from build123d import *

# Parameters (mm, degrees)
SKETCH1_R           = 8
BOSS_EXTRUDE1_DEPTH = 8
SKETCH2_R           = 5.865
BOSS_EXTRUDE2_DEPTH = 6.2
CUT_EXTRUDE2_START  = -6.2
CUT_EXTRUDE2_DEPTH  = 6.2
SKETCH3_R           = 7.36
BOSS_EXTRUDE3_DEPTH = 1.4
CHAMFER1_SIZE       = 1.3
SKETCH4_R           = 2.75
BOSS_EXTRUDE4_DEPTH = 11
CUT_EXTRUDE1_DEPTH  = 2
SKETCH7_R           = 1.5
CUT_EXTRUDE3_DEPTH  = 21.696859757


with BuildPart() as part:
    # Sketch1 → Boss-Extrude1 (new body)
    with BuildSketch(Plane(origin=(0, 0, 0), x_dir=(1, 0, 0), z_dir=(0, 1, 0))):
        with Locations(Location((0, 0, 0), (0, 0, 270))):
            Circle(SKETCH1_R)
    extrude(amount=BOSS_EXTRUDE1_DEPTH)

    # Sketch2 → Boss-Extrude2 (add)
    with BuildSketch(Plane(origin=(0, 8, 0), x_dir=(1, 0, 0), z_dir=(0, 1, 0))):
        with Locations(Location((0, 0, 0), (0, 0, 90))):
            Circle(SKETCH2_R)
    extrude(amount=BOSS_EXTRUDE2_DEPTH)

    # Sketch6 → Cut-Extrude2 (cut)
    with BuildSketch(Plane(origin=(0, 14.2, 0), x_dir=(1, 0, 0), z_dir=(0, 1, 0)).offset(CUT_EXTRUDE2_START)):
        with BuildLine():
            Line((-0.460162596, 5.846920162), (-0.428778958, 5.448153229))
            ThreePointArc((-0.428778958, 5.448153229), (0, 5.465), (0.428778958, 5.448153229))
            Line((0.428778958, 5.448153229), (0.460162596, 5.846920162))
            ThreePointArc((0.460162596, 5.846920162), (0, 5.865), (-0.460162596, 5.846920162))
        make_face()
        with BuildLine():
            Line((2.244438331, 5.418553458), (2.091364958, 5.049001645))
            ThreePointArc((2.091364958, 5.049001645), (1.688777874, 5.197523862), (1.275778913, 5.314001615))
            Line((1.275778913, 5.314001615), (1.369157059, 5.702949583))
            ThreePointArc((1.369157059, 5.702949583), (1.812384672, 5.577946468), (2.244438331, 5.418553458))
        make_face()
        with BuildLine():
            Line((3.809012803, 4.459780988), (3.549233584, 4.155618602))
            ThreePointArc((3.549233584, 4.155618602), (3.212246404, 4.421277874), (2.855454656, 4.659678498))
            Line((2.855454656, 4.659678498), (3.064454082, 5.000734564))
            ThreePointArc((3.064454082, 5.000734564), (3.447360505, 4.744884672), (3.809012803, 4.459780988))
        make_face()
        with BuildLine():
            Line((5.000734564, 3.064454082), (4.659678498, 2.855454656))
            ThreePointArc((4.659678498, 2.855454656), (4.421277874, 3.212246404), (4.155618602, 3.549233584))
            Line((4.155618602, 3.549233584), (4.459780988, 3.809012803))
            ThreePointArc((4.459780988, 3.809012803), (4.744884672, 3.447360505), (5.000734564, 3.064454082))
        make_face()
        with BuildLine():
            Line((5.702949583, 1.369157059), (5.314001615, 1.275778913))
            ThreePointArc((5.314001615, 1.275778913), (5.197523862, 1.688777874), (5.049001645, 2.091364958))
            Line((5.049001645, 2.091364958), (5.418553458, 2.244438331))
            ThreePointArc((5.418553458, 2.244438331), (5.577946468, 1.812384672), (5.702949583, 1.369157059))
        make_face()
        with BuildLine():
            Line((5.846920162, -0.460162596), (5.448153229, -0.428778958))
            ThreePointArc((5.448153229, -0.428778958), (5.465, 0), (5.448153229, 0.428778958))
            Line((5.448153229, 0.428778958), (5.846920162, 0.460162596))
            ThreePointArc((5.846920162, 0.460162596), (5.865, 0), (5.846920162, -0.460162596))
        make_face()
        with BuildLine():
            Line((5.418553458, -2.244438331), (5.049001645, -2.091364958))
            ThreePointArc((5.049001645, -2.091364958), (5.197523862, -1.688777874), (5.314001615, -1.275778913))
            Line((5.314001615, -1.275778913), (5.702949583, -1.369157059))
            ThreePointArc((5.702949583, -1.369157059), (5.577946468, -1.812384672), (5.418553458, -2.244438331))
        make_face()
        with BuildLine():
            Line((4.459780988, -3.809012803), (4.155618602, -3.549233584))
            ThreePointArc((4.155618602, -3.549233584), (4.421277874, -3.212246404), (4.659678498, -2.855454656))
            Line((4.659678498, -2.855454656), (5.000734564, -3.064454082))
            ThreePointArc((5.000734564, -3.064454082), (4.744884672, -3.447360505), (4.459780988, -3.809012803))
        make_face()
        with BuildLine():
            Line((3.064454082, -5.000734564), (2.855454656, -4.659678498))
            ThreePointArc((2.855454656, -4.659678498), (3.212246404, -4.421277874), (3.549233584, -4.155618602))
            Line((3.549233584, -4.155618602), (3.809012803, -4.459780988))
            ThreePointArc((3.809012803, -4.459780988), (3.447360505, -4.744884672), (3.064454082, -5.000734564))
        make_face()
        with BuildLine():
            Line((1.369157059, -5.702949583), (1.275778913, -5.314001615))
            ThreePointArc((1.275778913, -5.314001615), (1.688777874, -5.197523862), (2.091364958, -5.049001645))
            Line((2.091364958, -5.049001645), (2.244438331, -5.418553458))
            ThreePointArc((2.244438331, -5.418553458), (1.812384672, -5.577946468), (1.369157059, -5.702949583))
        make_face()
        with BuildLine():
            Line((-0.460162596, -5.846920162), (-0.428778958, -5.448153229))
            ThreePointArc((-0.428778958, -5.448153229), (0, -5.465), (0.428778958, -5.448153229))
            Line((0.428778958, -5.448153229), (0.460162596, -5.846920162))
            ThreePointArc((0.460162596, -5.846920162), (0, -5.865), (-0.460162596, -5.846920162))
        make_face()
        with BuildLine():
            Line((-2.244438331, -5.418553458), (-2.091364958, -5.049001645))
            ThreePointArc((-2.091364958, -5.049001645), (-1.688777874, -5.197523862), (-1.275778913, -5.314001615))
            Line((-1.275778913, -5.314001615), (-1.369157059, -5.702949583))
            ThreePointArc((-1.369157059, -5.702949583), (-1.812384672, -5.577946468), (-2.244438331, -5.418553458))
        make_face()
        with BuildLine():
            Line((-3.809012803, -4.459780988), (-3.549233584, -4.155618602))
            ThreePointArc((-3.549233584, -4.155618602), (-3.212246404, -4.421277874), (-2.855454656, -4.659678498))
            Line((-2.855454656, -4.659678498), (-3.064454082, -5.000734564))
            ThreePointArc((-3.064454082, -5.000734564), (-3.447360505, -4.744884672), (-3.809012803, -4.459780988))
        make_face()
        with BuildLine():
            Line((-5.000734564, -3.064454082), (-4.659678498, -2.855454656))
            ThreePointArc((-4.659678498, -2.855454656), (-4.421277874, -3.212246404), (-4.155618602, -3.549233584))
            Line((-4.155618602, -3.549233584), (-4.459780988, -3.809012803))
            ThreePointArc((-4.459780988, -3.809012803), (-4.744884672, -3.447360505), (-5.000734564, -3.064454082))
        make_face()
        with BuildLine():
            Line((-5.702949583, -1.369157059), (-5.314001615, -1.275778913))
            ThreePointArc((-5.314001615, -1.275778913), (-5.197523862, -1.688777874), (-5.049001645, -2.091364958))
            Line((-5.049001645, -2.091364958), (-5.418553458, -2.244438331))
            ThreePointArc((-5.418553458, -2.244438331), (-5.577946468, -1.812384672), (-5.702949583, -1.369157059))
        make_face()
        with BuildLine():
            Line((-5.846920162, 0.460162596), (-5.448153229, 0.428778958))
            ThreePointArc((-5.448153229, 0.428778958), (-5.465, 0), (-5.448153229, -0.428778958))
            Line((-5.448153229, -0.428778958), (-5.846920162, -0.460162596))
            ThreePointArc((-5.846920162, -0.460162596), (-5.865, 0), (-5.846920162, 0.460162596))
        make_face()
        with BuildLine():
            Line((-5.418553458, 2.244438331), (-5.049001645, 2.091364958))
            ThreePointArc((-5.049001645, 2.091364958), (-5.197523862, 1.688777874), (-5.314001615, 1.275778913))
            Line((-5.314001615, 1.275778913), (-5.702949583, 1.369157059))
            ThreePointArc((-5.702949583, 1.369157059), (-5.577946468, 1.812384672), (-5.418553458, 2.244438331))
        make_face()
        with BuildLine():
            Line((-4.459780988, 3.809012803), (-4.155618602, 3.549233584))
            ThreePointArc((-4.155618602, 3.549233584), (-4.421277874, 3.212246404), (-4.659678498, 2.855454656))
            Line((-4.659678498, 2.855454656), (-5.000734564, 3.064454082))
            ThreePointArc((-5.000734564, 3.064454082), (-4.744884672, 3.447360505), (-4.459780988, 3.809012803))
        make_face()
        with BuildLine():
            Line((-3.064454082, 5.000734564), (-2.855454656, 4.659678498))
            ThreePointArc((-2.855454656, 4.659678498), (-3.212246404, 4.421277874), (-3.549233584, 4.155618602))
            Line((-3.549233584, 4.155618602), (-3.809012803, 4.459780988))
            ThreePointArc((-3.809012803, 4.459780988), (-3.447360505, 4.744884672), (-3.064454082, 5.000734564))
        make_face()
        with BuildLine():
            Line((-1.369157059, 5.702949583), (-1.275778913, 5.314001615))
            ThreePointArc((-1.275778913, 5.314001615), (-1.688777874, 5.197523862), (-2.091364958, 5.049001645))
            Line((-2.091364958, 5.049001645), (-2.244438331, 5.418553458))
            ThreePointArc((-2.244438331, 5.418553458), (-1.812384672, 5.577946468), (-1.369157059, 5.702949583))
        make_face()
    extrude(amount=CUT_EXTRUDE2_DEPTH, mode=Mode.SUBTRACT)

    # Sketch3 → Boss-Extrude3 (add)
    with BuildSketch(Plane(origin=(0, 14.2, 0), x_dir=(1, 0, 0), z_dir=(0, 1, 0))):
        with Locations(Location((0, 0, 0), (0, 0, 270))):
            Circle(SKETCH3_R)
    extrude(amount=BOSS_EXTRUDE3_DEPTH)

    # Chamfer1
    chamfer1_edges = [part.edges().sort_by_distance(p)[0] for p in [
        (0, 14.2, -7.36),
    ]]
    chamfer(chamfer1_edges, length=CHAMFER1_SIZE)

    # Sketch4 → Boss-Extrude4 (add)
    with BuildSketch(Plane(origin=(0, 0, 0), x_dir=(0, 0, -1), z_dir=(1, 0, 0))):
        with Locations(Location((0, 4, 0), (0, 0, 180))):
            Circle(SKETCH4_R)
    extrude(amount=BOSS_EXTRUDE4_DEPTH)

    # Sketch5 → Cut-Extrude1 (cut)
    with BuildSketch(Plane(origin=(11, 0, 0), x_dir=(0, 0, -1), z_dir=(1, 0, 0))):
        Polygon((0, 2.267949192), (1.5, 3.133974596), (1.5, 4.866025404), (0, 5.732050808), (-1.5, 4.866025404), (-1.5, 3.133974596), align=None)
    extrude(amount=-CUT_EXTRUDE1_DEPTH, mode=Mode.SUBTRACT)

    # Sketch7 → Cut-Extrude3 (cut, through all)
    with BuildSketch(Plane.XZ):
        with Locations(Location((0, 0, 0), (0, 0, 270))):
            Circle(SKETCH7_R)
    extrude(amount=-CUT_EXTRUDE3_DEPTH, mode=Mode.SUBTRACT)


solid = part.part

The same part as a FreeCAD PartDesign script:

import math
import FreeCAD as App
import Part
import Sketcher

V = App.Vector
Q = App.Units.Quantity


def edges_at(feature, points):
    """Names of the edges that pass closest to the given points."""
    edges = feature.Shape.Edges
    near = lambda p: min(range(len(edges)), key=lambda i: edges[i].distToShape(Part.Vertex(*p))[0])
    return sorted({f"Edge{near(p) + 1}" for p in points})


def add_polygon(sketch, points):
    """Adds a closed chain of lines whose ends are joined by coincident constraints."""
    first, n = sketch.GeometryCount, len(points)
    for a, b in zip(points, points[1:] + points[:1]):
        sketch.addGeometry(Part.LineSegment(App.Vector(*a, 0), App.Vector(*b, 0)), False)
    for i in range(n):
        sketch.addConstraint(Sketcher.Constraint("Coincident", first + i, 2, first + (i + 1) % n, 1))

doc = App.newDocument("Part")
params = doc.addObject("Spreadsheet::Sheet", "Params")
for row, (alias, value) in enumerate([
    ("sketch1_diameter", "16 mm"),
    ("pad1_length", "8 mm"),
    ("sketch2_diameter", "11.73 mm"),
    ("pad2_length", "6.2 mm"),
    ("pocket1_length", "6.2 mm"),
    ("sketch4_diameter", "14.72 mm"),
    ("pad3_length", "1.4 mm"),
    ("chamfer_size", "1.3 mm"),
    ("sketch5_diameter", "5.5 mm"),
    ("pad4_length", "11 mm"),
    ("pocket2_length", "2 mm"),
    ("sketch7_diameter", "3 mm"),
], start=1):
    params.set(f"A{row}", alias)
    params.set(f"B{row}", "=" + value)
    params.setAlias(f"B{row}", alias)

body = doc.addObject("PartDesign::Body", "Body")

sketch1 = doc.addObject("Sketcher::SketchObject", "Sketch")
body.addObject(sketch1)
sketch1.AttachmentSupport = (doc.XZ_Plane, [""])
sketch1.MapMode = "FlatFace"
sketch1.addGeometry(Part.Circle(V(0, 0, 0), V(0, 0, 1), 8), False)
sketch1.addConstraint([
    Sketcher.Constraint("Coincident", 0, 3, -1, 1),
    Sketcher.Constraint("Diameter", 0, Q("16 mm")),
])
sketch1.setExpression("Constraints[1]", "Params.sketch1_diameter")
pad1 = doc.addObject("PartDesign::Pad", "Pad")
body.addObject(pad1)
pad1.Profile = sketch1
pad1.setExpression("Length", "Params.pad1_length")
pad1.Reversed = True

sketch2 = doc.addObject("Sketcher::SketchObject", "Sketch001")
body.addObject(sketch2)
sketch2.AttachmentSupport = (doc.XZ_Plane, [""])
sketch2.MapMode = "FlatFace"
sketch2.AttachmentOffset = App.Placement(V(0, 0, -8), App.Rotation())
sketch2.addGeometry(Part.Circle(V(0, 0, 0), V(0, 0, 1), 6), False)
sketch2.addConstraint([
    Sketcher.Constraint("Coincident", 0, 3, -1, 1),
    Sketcher.Constraint("Diameter", 0, Q("11.73 mm")),
])
sketch2.setExpression("Constraints[1]", "Params.sketch2_diameter")
pad2 = doc.addObject("PartDesign::Pad", "Pad001")
body.addObject(pad2)
pad2.Profile = sketch2
pad2.setExpression("Length", "Params.pad2_length")
pad2.Reversed = True

sketch3 = doc.addObject("Sketcher::SketchObject", "Sketch002")
body.addObject(sketch3)
sketch3.AttachmentSupport = (doc.XZ_Plane, [""])
sketch3.MapMode = "FlatFace"
sketch3.AttachmentOffset = App.Placement(V(0, 0, -8), App.Rotation())
sketch3.addGeometry([
    Part.LineSegment(V(-0.46, -5.85, 0), V(-0.43, -5.45, 0)),
    Part.ArcOfCircle(Part.Circle(V(0, 0, 0), V(0, 0, 1), 5.47), math.radians(-94.5), math.radians(-85.5)),
    Part.LineSegment(V(0.43, -5.45, 0), V(0.46, -5.85, 0)),
    Part.ArcOfCircle(Part.Circle(V(0, 0, 0), V(0, 0, 1), 5.86), math.radians(-94.5), math.radians(-85.5)),
    Part.LineSegment(V(2.09, -5.05, 0), V(2.24, -5.42, 0)),
    Part.ArcOfCircle(Part.Circle(V(0, 0, 0), V(0, 0, 1), 5.86), math.radians(-76.5), math.radians(-67.5)),
    Part.LineSegment(V(1.37, -5.7, 0), V(1.28, -5.31, 0)),
    Part.ArcOfCircle(Part.Circle(V(0, 0, 0), V(0, 0, 1), 5.46), math.radians(-76.5), math.radians(-67.5)),
    Part.LineSegment(V(3.55, -4.16, 0), V(3.81, -4.46, 0)),
    Part.ArcOfCircle(Part.Circle(V(0, 0, 0), V(0, 0, 1), 5.86), math.radians(-58.5), math.radians(-49.5)),
    Part.LineSegment(V(3.06, -5, 0), V(2.86, -4.66, 0)),
    Part.ArcOfCircle(Part.Circle(V(0, 0, 0), V(0, 0, 1), 5.46), math.radians(-58.5), math.radians(-49.5)),
    Part.LineSegment(V(4.66, -2.86, 0), V(5, -3.06, 0)),
    Part.ArcOfCircle(Part.Circle(V(0, 0, 0), V(0, 0, 1), 5.86), math.radians(-40.5), math.radians(-31.5)),
    Part.LineSegment(V(4.46, -3.81, 0), V(4.16, -3.55, 0)),
    Part.ArcOfCircle(Part.Circle(V(0, 0, 0), V(0, 0, 1), 5.46), math.radians(-40.5), math.radians(-31.5)),
    Part.LineSegment(V(5.31, -1.28, 0), V(5.7, -1.37, 0)),
    Part.ArcOfCircle(Part.Circle(V(0, 0, 0), V(0, 0, 1), 5.86), math.radians(-22.5), math.radians(-13.5)),
    Part.LineSegment(V(5.42, -2.24, 0), V(5.05, -2.09, 0)),
    Part.ArcOfCircle(Part.Circle(V(0, 0, 0), V(0, 0, 1), 5.46), math.radians(-22.5), math.radians(-13.5)),
    Part.LineSegment(V(5.45, 0.43, 0), V(5.85, 0.46, 0)),
    Part.ArcOfCircle(Part.Circle(V(0, 0, 0), V(0, 0, 1), 5.86), math.radians(-4.5), math.radians(4.5)),
    Part.LineSegment(V(5.85, -0.46, 0), V(5.45, -0.43, 0)),
    Part.ArcOfCircle(Part.Circle(V(0, 0, 0), V(0, 0, 1), 5.47), math.radians(-4.5), math.radians(4.5)),
    Part.LineSegment(V(5.05, 2.09, 0), V(5.42, 2.24, 0)),
    Part.ArcOfCircle(Part.Circle(V(0, 0, 0), V(0, 0, 1), 5.86), math.radians(13.5), math.radians(22.5)),
    Part.LineSegment(V(5.7, 1.37, 0), V(5.31, 1.28, 0)),
    Part.ArcOfCircle(Part.Circle(V(0, 0, 0), V(0, 0, 1), 5.46), math.radians(13.5), math.radians(22.5)),
    Part.LineSegment(V(4.16, 3.55, 0), V(4.46, 3.81, 0)),
    Part.ArcOfCircle(Part.Circle(V(0, 0, 0), V(0, 0, 1), 5.86), math.radians(31.5), math.radians(40.5)),
    Part.LineSegment(V(5, 3.06, 0), V(4.66, 2.86, 0)),
    Part.ArcOfCircle(Part.Circle(V(0, 0, 0), V(0, 0, 1), 5.46), math.radians(31.5), math.radians(40.5)),
    Part.LineSegment(V(2.86, 4.66, 0), V(3.06, 5, 0)),
    Part.ArcOfCircle(Part.Circle(V(0, 0, 0), V(0, 0, 1), 5.86), math.radians(49.5), math.radians(58.5)),
    Part.LineSegment(V(3.81, 4.46, 0), V(3.55, 4.16, 0)),
    Part.ArcOfCircle(Part.Circle(V(0, 0, 0), V(0, 0, 1), 5.46), math.radians(49.5), math.radians(58.5)),
    Part.LineSegment(V(1.28, 5.31, 0), V(1.37, 5.7, 0)),
    Part.ArcOfCircle(Part.Circle(V(0, 0, 0), V(0, 0, 1), 5.86), math.radians(67.5), math.radians(76.5)),
    Part.LineSegment(V(2.24, 5.42, 0), V(2.09, 5.05, 0)),
    Part.ArcOfCircle(Part.Circle(V(0, 0, 0), V(0, 0, 1), 5.46), math.radians(67.5), math.radians(76.5)),
    Part.LineSegment(V(-0.43, 5.45, 0), V(-0.46, 5.85, 0)),
    Part.ArcOfCircle(Part.Circle(V(0, 0, 0), V(0, 0, 1), 5.86), math.radians(85.5), math.radians(94.5)),
    Part.LineSegment(V(0.46, 5.85, 0), V(0.43, 5.45, 0)),
    Part.ArcOfCircle(Part.Circle(V(0, 0, 0), V(0, 0, 1), 5.47), math.radians(85.5), math.radians(94.5)),
    Part.LineSegment(V(-2.09, 5.05, 0), V(-2.24, 5.42, 0)),
    Part.ArcOfCircle(Part.Circle(V(0, 0, 0), V(0, 0, 1), 5.86), math.radians(103.5), math.radians(112.5)),
    Part.LineSegment(V(-1.37, 5.7, 0), V(-1.28, 5.31, 0)),
    Part.ArcOfCircle(Part.Circle(V(0, 0, 0), V(0, 0, 1), 5.46), math.radians(103.5), math.radians(112.5)),
    Part.LineSegment(V(-3.55, 4.16, 0), V(-3.81, 4.46, 0)),
    Part.ArcOfCircle(Part.Circle(V(0, 0, 0), V(0, 0, 1), 5.86), math.radians(121.5), math.radians(130.5)),
    Part.LineSegment(V(-3.06, 5, 0), V(-2.86, 4.66, 0)),
    Part.ArcOfCircle(Part.Circle(V(0, 0, 0), V(0, 0, 1), 5.46), math.radians(121.5), math.radians(130.5)),
    Part.LineSegment(V(-4.66, 2.86, 0), V(-5, 3.06, 0)),
    Part.ArcOfCircle(Part.Circle(V(0, 0, 0), V(0, 0, 1), 5.86), math.radians(139.5), math.radians(148.5)),
    Part.LineSegment(V(-4.46, 3.81, 0), V(-4.16, 3.55, 0)),
    Part.ArcOfCircle(Part.Circle(V(0, 0, 0), V(0, 0, 1), 5.46), math.radians(139.5), math.radians(148.5)),
    Part.LineSegment(V(-5.31, 1.28, 0), V(-5.7, 1.37, 0)),
    Part.ArcOfCircle(Part.Circle(V(0, 0, 0), V(0, 0, 1), 5.86), math.radians(157.5), math.radians(166.5)),
    Part.LineSegment(V(-5.42, 2.24, 0), V(-5.05, 2.09, 0)),
    Part.ArcOfCircle(Part.Circle(V(0, 0, 0), V(0, 0, 1), 5.46), math.radians(157.5), math.radians(166.5)),
    Part.LineSegment(V(-5.45, -0.43, 0), V(-5.85, -0.46, 0)),
    Part.ArcOfCircle(Part.Circle(V(0, 0, 0), V(0, 0, 1), 5.86), math.radians(175.5), math.radians(184.5)),
    Part.LineSegment(V(-5.85, 0.46, 0), V(-5.45, 0.43, 0)),
    Part.ArcOfCircle(Part.Circle(V(0, 0, 0), V(0, 0, 1), 5.47), math.radians(175.5), math.radians(184.5)),
    Part.LineSegment(V(-5.05, -2.09, 0), V(-5.42, -2.24, 0)),
    Part.ArcOfCircle(Part.Circle(V(0, 0, 0), V(0, 0, 1), 5.86), math.radians(-166.5), math.radians(-157.5)),
    Part.LineSegment(V(-5.7, -1.37, 0), V(-5.31, -1.28, 0)),
    Part.ArcOfCircle(Part.Circle(V(0, 0, 0), V(0, 0, 1), 5.46), math.radians(-166.5), math.radians(-157.5)),
    Part.LineSegment(V(-4.16, -3.55, 0), V(-4.46, -3.81, 0)),
    Part.ArcOfCircle(Part.Circle(V(0, 0, 0), V(0, 0, 1), 5.86), math.radians(-148.5), math.radians(-139.5)),
    Part.LineSegment(V(-5, -3.06, 0), V(-4.66, -2.86, 0)),
    Part.ArcOfCircle(Part.Circle(V(0, 0, 0), V(0, 0, 1), 5.46), math.radians(-148.5), math.radians(-139.5)),
    Part.LineSegment(V(-2.86, -4.66, 0), V(-3.06, -5, 0)),
    Part.ArcOfCircle(Part.Circle(V(0, 0, 0), V(0, 0, 1), 5.86), math.radians(-130.5), math.radians(-121.5)),
    Part.LineSegment(V(-3.81, -4.46, 0), V(-3.55, -4.16, 0)),
    Part.ArcOfCircle(Part.Circle(V(0, 0, 0), V(0, 0, 1), 5.46), math.radians(-130.5), math.radians(-121.5)),
    Part.LineSegment(V(-1.28, -5.31, 0), V(-1.37, -5.7, 0)),
    Part.ArcOfCircle(Part.Circle(V(0, 0, 0), V(0, 0, 1), 5.86), math.radians(-112.5), math.radians(-103.5)),
    Part.LineSegment(V(-2.24, -5.42, 0), V(-2.09, -5.05, 0)),
    Part.ArcOfCircle(Part.Circle(V(0, 0, 0), V(0, 0, 1), 5.46), math.radians(-112.5), math.radians(-103.5)),
], False)
sketch3.addConstraint([
    Sketcher.Constraint("Coincident", 0, 2, 1, 1),
    Sketcher.Constraint("Coincident", 1, 2, 2, 1),
    Sketcher.Constraint("Coincident", 2, 2, 3, 2),
    Sketcher.Constraint("Coincident", 3, 1, 0, 1),
    Sketcher.Constraint("Coincident", 4, 2, 5, 2),
    Sketcher.Constraint("Coincident", 5, 1, 6, 1),
    Sketcher.Constraint("Coincident", 6, 2, 7, 1),
    Sketcher.Constraint("Coincident", 7, 2, 4, 1),
    Sketcher.Constraint("Coincident", 8, 2, 9, 2),
    Sketcher.Constraint("Coincident", 9, 1, 10, 1),
    Sketcher.Constraint("Coincident", 10, 2, 11, 1),
    Sketcher.Constraint("Coincident", 11, 2, 8, 1),
    Sketcher.Constraint("Coincident", 12, 2, 13, 2),
    Sketcher.Constraint("Coincident", 13, 1, 14, 1),
    Sketcher.Constraint("Coincident", 14, 2, 15, 1),
    Sketcher.Constraint("Coincident", 15, 2, 12, 1),
    Sketcher.Constraint("Coincident", 16, 2, 17, 2),
    Sketcher.Constraint("Coincident", 17, 1, 18, 1),
    Sketcher.Constraint("Coincident", 18, 2, 19, 1),
    Sketcher.Constraint("Coincident", 19, 2, 16, 1),
    Sketcher.Constraint("Coincident", 20, 2, 21, 2),
    Sketcher.Constraint("Coincident", 21, 1, 22, 1),
    Sketcher.Constraint("Coincident", 22, 2, 23, 1),
    Sketcher.Constraint("Coincident", 23, 2, 20, 1),
    Sketcher.Constraint("Coincident", 24, 2, 25, 2),
    Sketcher.Constraint("Coincident", 25, 1, 26, 1),
    Sketcher.Constraint("Coincident", 26, 2, 27, 1),
    Sketcher.Constraint("Coincident", 27, 2, 24, 1),
    Sketcher.Constraint("Coincident", 28, 2, 29, 2),
    Sketcher.Constraint("Coincident", 29, 1, 30, 1),
    Sketcher.Constraint("Coincident", 30, 2, 31, 1),
    Sketcher.Constraint("Coincident", 31, 2, 28, 1),
    Sketcher.Constraint("Coincident", 32, 2, 33, 2),
    Sketcher.Constraint("Coincident", 33, 1, 34, 1),
    Sketcher.Constraint("Coincident", 34, 2, 35, 1),
    Sketcher.Constraint("Coincident", 35, 2, 32, 1),
    Sketcher.Constraint("Coincident", 36, 2, 37, 2),
    Sketcher.Constraint("Coincident", 37, 1, 38, 1),
    Sketcher.Constraint("Coincident", 38, 2, 39, 1),
    Sketcher.Constraint("Coincident", 39, 2, 36, 1),
    Sketcher.Constraint("Coincident", 40, 2, 41, 2),
    Sketcher.Constraint("Coincident", 41, 1, 42, 1),
    Sketcher.Constraint("Coincident", 42, 2, 43, 1),
    Sketcher.Constraint("Coincident", 43, 2, 40, 1),
    Sketcher.Constraint("Coincident", 44, 2, 45, 2),
    Sketcher.Constraint("Coincident", 45, 1, 46, 1),
    Sketcher.Constraint("Coincident", 46, 2, 47, 1),
    Sketcher.Constraint("Coincident", 47, 2, 44, 1),
    Sketcher.Constraint("Coincident", 48, 2, 49, 2),
    Sketcher.Constraint("Coincident", 49, 1, 50, 1),
    Sketcher.Constraint("Coincident", 50, 2, 51, 1),
    Sketcher.Constraint("Coincident", 51, 2, 48, 1),
    Sketcher.Constraint("Coincident", 52, 2, 53, 2),
    Sketcher.Constraint("Coincident", 53, 1, 54, 1),
    Sketcher.Constraint("Coincident", 54, 2, 55, 1),
    Sketcher.Constraint("Coincident", 55, 2, 52, 1),
    Sketcher.Constraint("Coincident", 56, 2, 57, 2),
    Sketcher.Constraint("Coincident", 57, 1, 58, 1),
    Sketcher.Constraint("Coincident", 58, 2, 59, 1),
    Sketcher.Constraint("Coincident", 59, 2, 56, 1),
    Sketcher.Constraint("Coincident", 60, 2, 61, 2),
    Sketcher.Constraint("Coincident", 61, 1, 62, 1),
    Sketcher.Constraint("Coincident", 62, 2, 63, 1),
    Sketcher.Constraint("Coincident", 63, 2, 60, 1),
    Sketcher.Constraint("Coincident", 64, 2, 65, 2),
    Sketcher.Constraint("Coincident", 65, 1, 66, 1),
    Sketcher.Constraint("Coincident", 66, 2, 67, 1),
    Sketcher.Constraint("Coincident", 67, 2, 64, 1),
    Sketcher.Constraint("Coincident", 68, 2, 69, 2),
    Sketcher.Constraint("Coincident", 69, 1, 70, 1),
    Sketcher.Constraint("Coincident", 70, 2, 71, 1),
    Sketcher.Constraint("Coincident", 71, 2, 68, 1),
    Sketcher.Constraint("Coincident", 72, 2, 73, 2),
    Sketcher.Constraint("Coincident", 73, 1, 74, 1),
    Sketcher.Constraint("Coincident", 74, 2, 75, 1),
    Sketcher.Constraint("Coincident", 75, 2, 72, 1),
    Sketcher.Constraint("Coincident", 76, 2, 77, 2),
    Sketcher.Constraint("Coincident", 77, 1, 78, 1),
    Sketcher.Constraint("Coincident", 78, 2, 79, 1),
    Sketcher.Constraint("Coincident", 79, 2, 76, 1),
    Sketcher.Constraint("Coincident", 1, 3, -1, 1),
    Sketcher.Constraint("Coincident", 3, 3, -1, 1),
    Sketcher.Constraint("Coincident", 5, 3, -1, 1),
    Sketcher.Constraint("Coincident", 7, 3, -1, 1),
    Sketcher.Constraint("Coincident", 9, 3, -1, 1),
    Sketcher.Constraint("Coincident", 11, 3, -1, 1),
    Sketcher.Constraint("Coincident", 13, 3, -1, 1),
    Sketcher.Constraint("Coincident", 15, 3, -1, 1),
    Sketcher.Constraint("Coincident", 17, 3, -1, 1),
    Sketcher.Constraint("Coincident", 19, 3, -1, 1),
    Sketcher.Constraint("Coincident", 21, 3, -1, 1),
    Sketcher.Constraint("Coincident", 23, 3, -1, 1),
    Sketcher.Constraint("Coincident", 25, 3, -1, 1),
    Sketcher.Constraint("Coincident", 27, 3, -1, 1),
    Sketcher.Constraint("Coincident", 29, 3, -1, 1),
    Sketcher.Constraint("Coincident", 31, 3, -1, 1),
    Sketcher.Constraint("Coincident", 33, 3, -1, 1),
    Sketcher.Constraint("Coincident", 35, 3, -1, 1),
    Sketcher.Constraint("Coincident", 37, 3, -1, 1),
    Sketcher.Constraint("Coincident", 39, 3, -1, 1),
    Sketcher.Constraint("Coincident", 41, 3, -1, 1),
    Sketcher.Constraint("Coincident", 43, 3, -1, 1),
    Sketcher.Constraint("Coincident", 45, 3, -1, 1),
    Sketcher.Constraint("Coincident", 47, 3, -1, 1),
    Sketcher.Constraint("Coincident", 49, 3, -1, 1),
    Sketcher.Constraint("Coincident", 51, 3, -1, 1),
    Sketcher.Constraint("Coincident", 53, 3, -1, 1),
    Sketcher.Constraint("Coincident", 55, 3, -1, 1),
    Sketcher.Constraint("Coincident", 57, 3, -1, 1),
    Sketcher.Constraint("Coincident", 59, 3, -1, 1),
    Sketcher.Constraint("Coincident", 61, 3, -1, 1),
    Sketcher.Constraint("Coincident", 63, 3, -1, 1),
    Sketcher.Constraint("Coincident", 65, 3, -1, 1),
    Sketcher.Constraint("Coincident", 67, 3, -1, 1),
    Sketcher.Constraint("Coincident", 69, 3, -1, 1),
    Sketcher.Constraint("Coincident", 71, 3, -1, 1),
    Sketcher.Constraint("Coincident", 73, 3, -1, 1),
    Sketcher.Constraint("Coincident", 75, 3, -1, 1),
    Sketcher.Constraint("Coincident", 77, 3, -1, 1),
    Sketcher.Constraint("Coincident", 79, 3, -1, 1),
    Sketcher.Constraint("Equal", 3, 5),
    Sketcher.Constraint("Equal", 1, 7),
    Sketcher.Constraint("Equal", 5, 9),
    Sketcher.Constraint("Equal", 7, 11),
    Sketcher.Constraint("Equal", 9, 13),
    Sketcher.Constraint("Equal", 11, 15),
    Sketcher.Constraint("Equal", 13, 17),
    Sketcher.Constraint("Equal", 15, 19),
    Sketcher.Constraint("Equal", 17, 21),
    Sketcher.Constraint("Equal", 19, 23),
    Sketcher.Constraint("Equal", 21, 25),
    Sketcher.Constraint("Equal", 23, 27),
    Sketcher.Constraint("Equal", 25, 29),
    Sketcher.Constraint("Equal", 27, 31),
    Sketcher.Constraint("Equal", 29, 33),
    Sketcher.Constraint("Equal", 31, 35),
    Sketcher.Constraint("Equal", 33, 37),
    Sketcher.Constraint("Equal", 35, 39),
    Sketcher.Constraint("Equal", 37, 41),
    Sketcher.Constraint("Equal", 39, 43),
    Sketcher.Constraint("Equal", 41, 45),
    Sketcher.Constraint("Equal", 43, 47),
    Sketcher.Constraint("Equal", 45, 49),
    Sketcher.Constraint("Equal", 47, 51),
    Sketcher.Constraint("Equal", 49, 53),
    Sketcher.Constraint("Equal", 51, 55),
    Sketcher.Constraint("Equal", 53, 57),
    Sketcher.Constraint("Equal", 55, 59),
    Sketcher.Constraint("Equal", 57, 61),
    Sketcher.Constraint("Equal", 59, 63),
    Sketcher.Constraint("Equal", 61, 65),
    Sketcher.Constraint("Equal", 63, 67),
    Sketcher.Constraint("Equal", 65, 69),
    Sketcher.Constraint("Equal", 67, 71),
    Sketcher.Constraint("Equal", 69, 73),
    Sketcher.Constraint("Equal", 71, 75),
    Sketcher.Constraint("Equal", 73, 77),
    Sketcher.Constraint("Equal", 75, 79),
    Sketcher.Constraint("Perpendicular", 2, 20),
    Sketcher.Constraint("Perpendicular", 0, 22),
    Sketcher.Constraint("Perpendicular", 4, 24),
    Sketcher.Constraint("Perpendicular", 6, 26),
    Sketcher.Constraint("Perpendicular", 8, 28),
    Sketcher.Constraint("Perpendicular", 10, 30),
    Sketcher.Constraint("Perpendicular", 12, 32),
    Sketcher.Constraint("Perpendicular", 14, 34),
    Sketcher.Constraint("Perpendicular", 16, 36),
    Sketcher.Constraint("Perpendicular", 18, 38),
    Sketcher.Constraint("Perpendicular", 20, 40),
    Sketcher.Constraint("Perpendicular", 22, 42),
    Sketcher.Constraint("Perpendicular", 24, 44),
    Sketcher.Constraint("Perpendicular", 26, 46),
    Sketcher.Constraint("Perpendicular", 28, 48),
    Sketcher.Constraint("Perpendicular", 30, 50),
    Sketcher.Constraint("Perpendicular", 32, 52),
    Sketcher.Constraint("Perpendicular", 34, 54),
    Sketcher.Constraint("Perpendicular", 36, 56),
    Sketcher.Constraint("Perpendicular", 38, 58),
    Sketcher.Constraint("Perpendicular", 40, 60),
    Sketcher.Constraint("Perpendicular", 42, 62),
    Sketcher.Constraint("Perpendicular", 44, 64),
    Sketcher.Constraint("Perpendicular", 46, 66),
    Sketcher.Constraint("Perpendicular", 48, 68),
    Sketcher.Constraint("Perpendicular", 50, 70),
    Sketcher.Constraint("Perpendicular", 52, 72),
    Sketcher.Constraint("Perpendicular", 54, 74),
    Sketcher.Constraint("Perpendicular", 56, 76),
    Sketcher.Constraint("Perpendicular", 58, 78),
    Sketcher.Constraint("Horizontal", 0, 2, 1, 2),
    Sketcher.Constraint("Horizontal", 2, 2, 3, 1),
    Sketcher.Constraint("Horizontal", 40, 2, 41, 1),
    Sketcher.Constraint("Horizontal", 37, 1, 44, 2),
    Sketcher.Constraint("Horizontal", 36, 2, 45, 1),
    Sketcher.Constraint("Horizontal", 39, 2, 46, 2),
    Sketcher.Constraint("Horizontal", 38, 2, 47, 2),
    Sketcher.Constraint("Horizontal", 33, 1, 48, 2),
    Sketcher.Constraint("Horizontal", 32, 2, 49, 1),
    Sketcher.Constraint("Horizontal", 35, 2, 50, 2),
    Sketcher.Constraint("Horizontal", 34, 2, 51, 2),
    Sketcher.Constraint("Horizontal", 29, 1, 52, 2),
    Sketcher.Constraint("Horizontal", 28, 2, 53, 1),
    Sketcher.Constraint("Horizontal", 25, 1, 56, 2),
    Sketcher.Constraint("Horizontal", 24, 2, 57, 1),
    Sketcher.Constraint("Horizontal", 21, 1, 60, 2),
    Sketcher.Constraint("Horizontal", 20, 2, 61, 1),
    Sketcher.Constraint("Horizontal", 17, 1, 64, 2),
    Sketcher.Constraint("Horizontal", 16, 2, 65, 1),
    Sketcher.Constraint("Horizontal", 13, 1, 68, 2),
    Sketcher.Constraint("Horizontal", 12, 2, 69, 1),
    Sketcher.Constraint("Horizontal", 9, 1, 72, 2),
    Sketcher.Constraint("Horizontal", 8, 2, 73, 1),
    Sketcher.Constraint("Horizontal", 5, 1, 76, 2),
    Sketcher.Constraint("Horizontal", 4, 2, 77, 1),
    Sketcher.Constraint("Vertical", 20, 2, 21, 1),
    Sketcher.Constraint("Vertical", 17, 1, 24, 2),
    Sketcher.Constraint("Vertical", 16, 2, 25, 1),
    Sketcher.Constraint("Vertical", 13, 1, 28, 2),
    Sketcher.Constraint("Vertical", 12, 2, 29, 1),
    Sketcher.Constraint("Vertical", 9, 1, 32, 2),
    Sketcher.Constraint("Vertical", 8, 2, 33, 1),
    Sketcher.Constraint("Vertical", 5, 1, 36, 2),
    Sketcher.Constraint("Vertical", 4, 2, 37, 1),
    Sketcher.Constraint("Vertical", 3, 1, 40, 2),
    Sketcher.Constraint("Angle", 0, Q("85.5 deg")),
    Sketcher.Constraint("Angle", 4, Q("-67.5 deg")),
    Sketcher.Constraint("Angle", 6, Q("103.5 deg")),
    Sketcher.Constraint("Angle", 8, Q("-49.5 deg")),
    Sketcher.Constraint("Angle", 10, Q("121.5 deg")),
    Sketcher.Constraint("Radius", 1, Q("5.465 mm")),
    Sketcher.Constraint("Radius", 3, Q("5.865 mm")),
    Sketcher.Constraint("DistanceY", 6, 2, -1, 1, Q("5.314002 mm")),
    Sketcher.Constraint("DistanceY", 7, 2, -1, 1, Q("5.049002 mm")),
    Sketcher.Constraint("DistanceX", -1, 1, 18, 2, Q("5.049002 mm")),
    Sketcher.Constraint("DistanceX", -1, 1, 19, 2, Q("5.314002 mm")),
    Sketcher.Constraint("DistanceX", 0, 2, -1, 1, Q("0.428779 mm")),
    Sketcher.Constraint("DistanceY", 8, 2, -1, 1, Q("4.459781 mm")),
    Sketcher.Constraint("DistanceY", 10, 2, -1, 1, Q("4.659678 mm")),
    Sketcher.Constraint("DistanceX", -1, 1, 13, 1, Q("4.459781 mm")),
    Sketcher.Constraint("DistanceX", -1, 1, 15, 2, Q("4.659678 mm")),
    Sketcher.Constraint("DistanceX", -1, 1, 20, 2, Q("5.84692 mm")),
])
pocket1 = doc.addObject("PartDesign::Pocket", "Pocket")
body.addObject(pocket1)
pocket1.Profile = sketch3
pocket1.setExpression("Length", "Params.pocket1_length")

sketch4 = doc.addObject("Sketcher::SketchObject", "Sketch003")
body.addObject(sketch4)
sketch4.AttachmentSupport = (doc.XZ_Plane, [""])
sketch4.MapMode = "FlatFace"
sketch4.AttachmentOffset = App.Placement(V(0, 0, -14.2), App.Rotation())
sketch4.addGeometry(Part.Circle(V(0, 0, 0), V(0, 0, 1), 7), False)
sketch4.addConstraint([
    Sketcher.Constraint("Coincident", 0, 3, -1, 1),
    Sketcher.Constraint("Diameter", 0, Q("14.72 mm")),
])
sketch4.setExpression("Constraints[1]", "Params.sketch4_diameter")
pad3 = doc.addObject("PartDesign::Pad", "Pad002")
body.addObject(pad3)
pad3.Profile = sketch4
pad3.setExpression("Length", "Params.pad3_length")
pad3.Reversed = True
doc.recompute()

chamfer = doc.addObject("PartDesign::Chamfer", "Chamfer")
body.addObject(chamfer)
chamfer.Base = (pad3, edges_at(pad3, [(0, 14.2, -7.36)]))
chamfer.setExpression("Size", "Params.chamfer_size")

sketch5 = doc.addObject("Sketcher::SketchObject", "Sketch004")
body.addObject(sketch5)
sketch5.AttachmentSupport = (doc.YZ_Plane, [""])
sketch5.MapMode = "FlatFace"
sketch5.addGeometry(Part.Circle(V(4, 0, 0), V(0, 0, 1), 2.8), False)
sketch5.addConstraint([
    Sketcher.Constraint("PointOnObject", 0, 3, -1),
    Sketcher.Constraint("Diameter", 0, Q("5.5 mm")),
    Sketcher.Constraint("DistanceX", -1, 1, 0, 3, Q("4 mm")),
])
sketch5.setExpression("Constraints[1]", "Params.sketch5_diameter")
pad4 = doc.addObject("PartDesign::Pad", "Pad003")
body.addObject(pad4)
pad4.Profile = sketch5
pad4.setExpression("Length", "Params.pad4_length")

sketch6 = doc.addObject("Sketcher::SketchObject", "Sketch005")
body.addObject(sketch6)
sketch6.AttachmentSupport = (doc.YZ_Plane, [""])
sketch6.MapMode = "FlatFace"
sketch6.AttachmentOffset = App.Placement(V(0, 0, 11), App.Rotation())
add_polygon(sketch6, [(2.3, 0), (3.1, -1.5), (4.9, -1.5), (5.7, 0), (4.9, 1.5), (3.1, 1.5)])
sketch6.addConstraint([
    Sketcher.Constraint("Horizontal", 1),
    Sketcher.Constraint("Horizontal", 4),
    Sketcher.Constraint("Symmetric", 1, 2, 3, 2, -1),
    Sketcher.Constraint("PointOnObject", 2, 2, -1),
    Sketcher.Constraint("PointOnObject", 5, 2, -1),
    Sketcher.Constraint("Parallel", 0, 3),
    Sketcher.Constraint("Parallel", 2, 5),
    Sketcher.Constraint("Angle", 0, Q("-60 deg")),
    Sketcher.Constraint("DistanceY", 1, 2, 3, 2, Q("3 mm")),
    Sketcher.Constraint("DistanceX", 1, 1, 1, 2, Q("1.732051 mm")),
    Sketcher.Constraint("DistanceX", -1, 1, 2, 2, Q("5.732051 mm")),
])
pocket2 = doc.addObject("PartDesign::Pocket", "Pocket001")
body.addObject(pocket2)
pocket2.Profile = sketch6
pocket2.setExpression("Length", "Params.pocket2_length")

sketch7 = doc.addObject("Sketcher::SketchObject", "Sketch006")
body.addObject(sketch7)
sketch7.AttachmentSupport = (doc.XZ_Plane, [""])
sketch7.MapMode = "FlatFace"
sketch7.addGeometry(Part.Circle(V(0, 0, 0), V(0, 0, 1), 1.5), False)
sketch7.addConstraint([
    Sketcher.Constraint("Coincident", 0, 3, -1, 1),
    Sketcher.Constraint("Diameter", 0, Q("3 mm")),
])
sketch7.setExpression("Constraints[1]", "Params.sketch7_diameter")
pocket3 = doc.addObject("PartDesign::Pocket", "Pocket002")
body.addObject(pocket3)
pocket3.Profile = sketch7
pocket3.Type = "ThroughAll"

doc.recompute()
